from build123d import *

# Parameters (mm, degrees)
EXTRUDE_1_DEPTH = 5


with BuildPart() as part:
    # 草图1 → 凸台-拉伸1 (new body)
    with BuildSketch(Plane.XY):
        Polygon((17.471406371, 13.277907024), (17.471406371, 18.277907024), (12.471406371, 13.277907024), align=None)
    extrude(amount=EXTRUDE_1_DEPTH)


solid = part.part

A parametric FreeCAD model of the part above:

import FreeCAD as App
import Part
import Sketcher
from FreeCAD import Vector


def add_polygon(sketch, points):
    """Adds a closed chain of lines whose ends are joined by coincident constraints."""
    first, n = sketch.GeometryCount, len(points)
    for a, b in zip(points, points[1:] + points[:1]):
        sketch.addGeometry(Part.LineSegment(App.Vector(*a, 0), App.Vector(*b, 0)), False)
    for i in range(n):
        sketch.addConstraint(Sketcher.Constraint("Coincident", first + i, 2, first + (i + 1) % n, 1))

doc = App.newDocument("Part")
body = doc.addObject("PartDesign::Body", "Body")

sketch1 = body.newObject("Sketcher::SketchObject", "Sketch")
sketch1.AttachmentSupport = (doc.getObject("XY_Plane"), [""])
sketch1.MapMode = "FlatFace"
add_polygon(sketch1, [(17.471406, 13.277907), (17.471406, 18.277907), (12.471406, 13.277907)])
sketch1.addConstraint(Sketcher.Constraint("Vertical", 0))
sketch1.addConstraint(Sketcher.Constraint("Horizontal", 2))
sketch1.addConstraint(Sketcher.Constraint("Equal", 2, 0))
sketch1.addConstraint(Sketcher.Constraint("DistanceX", 2, 1, 2, 2, 5.0))
sketch1.addConstraint(Sketcher.Constraint("DistanceX", -1, 1, 0, 2, 17.471406))
sketch1.addConstraint(Sketcher.Constraint("DistanceY", -1, 1, 0, 2, 18.277907))
pad1 = body.newObject("PartDesign::Pad", "Pad")
pad1.Profile = sketch1
pad1.Length = 5

doc.recompute()
